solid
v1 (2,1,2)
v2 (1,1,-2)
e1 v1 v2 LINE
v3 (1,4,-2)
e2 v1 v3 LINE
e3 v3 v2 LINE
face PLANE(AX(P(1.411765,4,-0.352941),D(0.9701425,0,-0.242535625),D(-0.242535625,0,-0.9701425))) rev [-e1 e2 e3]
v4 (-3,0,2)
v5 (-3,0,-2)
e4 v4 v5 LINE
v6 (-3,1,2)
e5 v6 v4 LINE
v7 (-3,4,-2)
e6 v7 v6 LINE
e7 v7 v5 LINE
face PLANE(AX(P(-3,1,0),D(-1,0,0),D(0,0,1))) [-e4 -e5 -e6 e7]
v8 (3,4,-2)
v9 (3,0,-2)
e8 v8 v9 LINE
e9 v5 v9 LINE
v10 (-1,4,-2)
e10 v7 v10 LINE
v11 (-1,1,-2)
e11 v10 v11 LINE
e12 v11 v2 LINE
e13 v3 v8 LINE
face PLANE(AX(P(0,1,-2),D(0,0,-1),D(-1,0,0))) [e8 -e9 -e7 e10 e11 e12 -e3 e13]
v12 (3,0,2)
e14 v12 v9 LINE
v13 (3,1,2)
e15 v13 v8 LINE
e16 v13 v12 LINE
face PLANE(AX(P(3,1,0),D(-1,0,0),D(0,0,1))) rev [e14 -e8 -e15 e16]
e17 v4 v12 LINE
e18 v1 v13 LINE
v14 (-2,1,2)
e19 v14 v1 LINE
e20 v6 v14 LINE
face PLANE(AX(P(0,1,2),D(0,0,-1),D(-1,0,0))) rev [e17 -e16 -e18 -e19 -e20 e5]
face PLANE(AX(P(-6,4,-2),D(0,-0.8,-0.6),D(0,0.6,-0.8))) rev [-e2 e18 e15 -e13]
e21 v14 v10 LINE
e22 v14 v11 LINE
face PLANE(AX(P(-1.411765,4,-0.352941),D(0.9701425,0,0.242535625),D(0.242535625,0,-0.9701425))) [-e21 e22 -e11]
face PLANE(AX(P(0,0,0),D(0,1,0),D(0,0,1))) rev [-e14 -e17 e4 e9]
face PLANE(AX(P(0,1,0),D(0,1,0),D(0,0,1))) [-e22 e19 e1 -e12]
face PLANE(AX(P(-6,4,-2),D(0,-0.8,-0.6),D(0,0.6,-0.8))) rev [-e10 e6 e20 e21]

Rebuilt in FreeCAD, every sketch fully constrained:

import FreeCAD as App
import Part
import Sketcher

V = App.Vector


def add_polygon(sketch, points):
    """Adds a closed chain of lines whose ends are joined by coincident constraints."""
    first, n = sketch.GeometryCount, len(points)
    for a, b in zip(points, points[1:] + points[:1]):
        sketch.addGeometry(Part.LineSegment(App.Vector(*a, 0), App.Vector(*b, 0)), False)
    for i in range(n):
        sketch.addConstraint(Sketcher.Constraint("Coincident", first + i, 2, first + (i + 1) % n, 1))

doc = App.newDocument("Part")
body = doc.addObject("PartDesign::Body", "Body")

# Sketch on XZ plane
sketch1 = doc.addObject("Sketcher::SketchObject", "Sketch")
body.addObject(sketch1)
sketch1.AttachmentSupport = (doc.XZ_Plane, [""])
sketch1.MapMode = "FlatFace"
add_polygon(sketch1, [(-3, -2), (-3, 2), (3, 2), (3, -2)])  # lines 0-3
sketch1.addConstraint(Sketcher.Constraint("Vertical", 0))
sketch1.addConstraint(Sketcher.Constraint("Horizontal", 1))
sketch1.addConstraint(Sketcher.Constraint("Vertical", 2))
sketch1.addConstraint(Sketcher.Constraint("Horizontal", 3))
sketch1.addConstraint(Sketcher.Constraint("Symmetric", 0, 2, 2, 2, -1, 1))
sketch1.addConstraint(Sketcher.Constraint("DistanceX", 1, 1, 1, 2, 6.0))
sketch1.addConstraint(Sketcher.Constraint("DistanceY", 0, 1, 0, 2, 4.0))
pad1 = doc.addObject("PartDesign::Pad", "Pad")
body.addObject(pad1)
pad1.Profile = sketch1
pad1.Length = 1
pad1.Reversed = True

# Sketch on XZ plane
sketch2 = doc.addObject("Sketcher::SketchObject", "Sketch001")
body.addObject(sketch2)
sketch2.AttachmentSupport = (doc.XZ_Plane, [""])
sketch2.MapMode = "FlatFace"
add_polygon(sketch2, [(-2, 2), (-1, -2), (-3, -2), (-3, 2)])  # lines 0-3
add_polygon(sketch2, [(3, -2), (1, -2), (2, 2), (3, 2)])  # lines 4-7
sketch2.addConstraint(Sketcher.Constraint("Horizontal", 1))
sketch2.addConstraint(Sketcher.Constraint("Vertical", 2))
sketch2.addConstraint(Sketcher.Constraint("Horizontal", 3))
sketch2.addConstraint(Sketcher.Constraint("Horizontal", 4))
sketch2.addConstraint(Sketcher.Constraint("Horizontal", 6))
sketch2.addConstraint(Sketcher.Constraint("Vertical", 7))
sketch2.addConstraint(Sketcher.Constraint("Symmetric", 1, 2, 6, 2, -1, 1))
sketch2.addConstraint(Sketcher.Constraint("Symmetric", 0, 2, 4, 2, -2))
sketch2.addConstraint(Sketcher.Constraint("Symmetric", 3, 2, 5, 2, -2))
sketch2.addConstraint(Sketcher.Constraint("DistanceX", 1, 2, 1, 1, 2.0))
sketch2.addConstraint(Sketcher.Constraint("DistanceX", 3, 1, 3, 2, 1.0))
sketch2.addConstraint(Sketcher.Constraint("DistanceY", 2, 1, 2, 2, 4.0))
sketch2.addConstraint(Sketcher.Constraint("DistanceX", 0, 2, -1, 1, 1.0))
pad2 = doc.addObject("PartDesign::Pad", "Pad001")
body.addObject(pad2)
pad2.Profile = sketch2
pad2.Length = 4
pad2.Reversed = True

# Sketch on YZ plane
sketch3 = doc.addObject("Sketcher::SketchObject", "Sketch002")
body.addObject(sketch3)
sketch3.AttachmentSupport = (doc.YZ_Plane, [""])
sketch3.MapMode = "FlatFace"
sketch3.AttachmentOffset = App.Placement(V(0, 0, 3), App.Rotation())
add_polygon(sketch3, [(1, 2), (4, -2), (4, 2)])  # lines 0-2
sketch3.addConstraint(Sketcher.Constraint("Vertical", 1))
sketch3.addConstraint(Sketcher.Constraint("Horizontal", 2))
sketch3.addConstraint(Sketcher.Constraint("DistanceX", 2, 2, 2, 1, 3.0))
sketch3.addConstraint(Sketcher.Constraint("DistanceY", 1, 1, 1, 2, 4.0))
sketch3.addConstraint(Sketcher.Constraint("DistanceX", -1, 1, 0, 2, 4.0))
sketch3.addConstraint(Sketcher.Constraint("DistanceY", 0, 2, -1, 1, 2.0))
pocket1 = doc.addObject("PartDesign::Pocket", "Pocket")
body.addObject(pocket1)
pocket1.Profile = sketch3
pocket1.Length = 9

doc.recompute()
